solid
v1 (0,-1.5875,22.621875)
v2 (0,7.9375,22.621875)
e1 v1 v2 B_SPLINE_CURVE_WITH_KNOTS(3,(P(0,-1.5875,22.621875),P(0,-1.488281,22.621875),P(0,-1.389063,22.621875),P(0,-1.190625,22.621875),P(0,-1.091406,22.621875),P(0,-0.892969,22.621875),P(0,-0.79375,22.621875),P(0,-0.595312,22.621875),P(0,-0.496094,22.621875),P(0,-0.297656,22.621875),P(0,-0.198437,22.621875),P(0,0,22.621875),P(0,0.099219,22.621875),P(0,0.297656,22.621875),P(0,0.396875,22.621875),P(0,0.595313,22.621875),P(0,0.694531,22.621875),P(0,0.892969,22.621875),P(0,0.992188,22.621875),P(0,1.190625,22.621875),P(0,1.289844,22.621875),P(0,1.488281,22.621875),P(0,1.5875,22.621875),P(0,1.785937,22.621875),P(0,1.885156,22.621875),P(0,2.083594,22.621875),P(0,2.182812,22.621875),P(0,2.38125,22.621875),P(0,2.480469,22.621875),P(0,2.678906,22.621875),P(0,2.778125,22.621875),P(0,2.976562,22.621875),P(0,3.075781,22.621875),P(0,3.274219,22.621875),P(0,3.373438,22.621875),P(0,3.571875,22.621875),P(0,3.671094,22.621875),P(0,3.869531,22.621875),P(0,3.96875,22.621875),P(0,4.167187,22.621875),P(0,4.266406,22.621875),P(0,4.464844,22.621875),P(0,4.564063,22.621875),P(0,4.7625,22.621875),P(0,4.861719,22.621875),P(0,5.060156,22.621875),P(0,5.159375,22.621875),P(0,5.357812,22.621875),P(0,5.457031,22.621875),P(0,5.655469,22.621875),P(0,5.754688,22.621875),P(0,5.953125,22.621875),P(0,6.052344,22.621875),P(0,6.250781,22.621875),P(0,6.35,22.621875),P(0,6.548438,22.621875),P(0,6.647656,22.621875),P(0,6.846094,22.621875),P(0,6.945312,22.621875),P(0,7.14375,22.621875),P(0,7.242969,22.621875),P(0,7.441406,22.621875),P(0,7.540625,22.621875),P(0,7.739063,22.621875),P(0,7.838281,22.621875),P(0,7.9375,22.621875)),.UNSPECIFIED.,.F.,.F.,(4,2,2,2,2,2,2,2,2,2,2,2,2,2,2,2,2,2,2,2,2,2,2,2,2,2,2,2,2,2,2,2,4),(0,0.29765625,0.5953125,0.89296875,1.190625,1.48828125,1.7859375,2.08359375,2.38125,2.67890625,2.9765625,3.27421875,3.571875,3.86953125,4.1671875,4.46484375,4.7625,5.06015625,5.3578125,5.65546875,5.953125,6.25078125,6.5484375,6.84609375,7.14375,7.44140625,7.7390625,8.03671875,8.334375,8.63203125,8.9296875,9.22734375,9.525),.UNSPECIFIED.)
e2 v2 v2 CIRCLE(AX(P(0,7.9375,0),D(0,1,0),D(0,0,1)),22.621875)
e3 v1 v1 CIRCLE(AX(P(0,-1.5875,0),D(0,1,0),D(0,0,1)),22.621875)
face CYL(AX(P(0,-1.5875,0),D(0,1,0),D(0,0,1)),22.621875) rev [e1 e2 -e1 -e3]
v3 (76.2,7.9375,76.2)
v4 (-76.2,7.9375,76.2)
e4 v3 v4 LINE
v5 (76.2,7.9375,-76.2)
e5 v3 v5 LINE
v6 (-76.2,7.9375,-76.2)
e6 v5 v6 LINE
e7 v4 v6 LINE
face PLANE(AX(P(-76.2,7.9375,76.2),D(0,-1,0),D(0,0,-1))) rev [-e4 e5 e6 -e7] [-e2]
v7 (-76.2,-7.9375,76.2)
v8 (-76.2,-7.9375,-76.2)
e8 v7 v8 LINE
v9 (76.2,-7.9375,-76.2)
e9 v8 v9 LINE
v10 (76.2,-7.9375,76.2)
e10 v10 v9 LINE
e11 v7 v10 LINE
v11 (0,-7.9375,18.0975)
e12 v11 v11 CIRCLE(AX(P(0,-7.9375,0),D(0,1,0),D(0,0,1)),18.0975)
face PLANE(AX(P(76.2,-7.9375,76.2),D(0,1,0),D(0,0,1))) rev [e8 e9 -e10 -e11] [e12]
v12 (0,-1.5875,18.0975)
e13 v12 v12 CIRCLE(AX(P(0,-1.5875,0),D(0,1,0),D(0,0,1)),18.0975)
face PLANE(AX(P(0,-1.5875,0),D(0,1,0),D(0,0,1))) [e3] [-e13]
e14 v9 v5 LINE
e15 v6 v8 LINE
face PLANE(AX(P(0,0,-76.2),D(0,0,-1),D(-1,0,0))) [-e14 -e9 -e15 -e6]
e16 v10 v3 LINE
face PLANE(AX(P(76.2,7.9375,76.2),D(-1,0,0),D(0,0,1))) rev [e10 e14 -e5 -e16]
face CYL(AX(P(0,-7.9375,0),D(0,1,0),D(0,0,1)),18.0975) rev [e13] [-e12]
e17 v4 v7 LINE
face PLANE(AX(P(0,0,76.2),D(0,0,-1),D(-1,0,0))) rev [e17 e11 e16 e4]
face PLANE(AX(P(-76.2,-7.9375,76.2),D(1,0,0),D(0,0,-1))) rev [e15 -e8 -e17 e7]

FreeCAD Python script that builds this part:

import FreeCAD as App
import Part
import Sketcher
Q = App.Units.Quantity


def add_polygon(sketch, points):
    """Adds a closed chain of lines whose ends are joined by coincident constraints."""
    first, n = sketch.GeometryCount, len(points)
    for a, b in zip(points, points[1:] + points[:1]):
        sketch.addGeometry(Part.LineSegment(App.Vector(*a, 0), App.Vector(*b, 0)), False)
    for i in range(n):
        sketch.addConstraint(Sketcher.Constraint("Coincident", first + i, 2, first + (i + 1) % n, 1))

doc = App.newDocument("Part")
body = doc.addObject("PartDesign::Body", "Body")

# Sketch on XY plane
sketch1 = doc.addObject("Sketcher::SketchObject", "Sketch")
body.addObject(sketch1)
sketch1.AttachmentSupport = (doc.XY_Plane, [""])
sketch1.MapMode = "FlatFace"
add_polygon(sketch1, [(-76, 8), (-76, -8), (76, -8), (76, 8)])  # lines 0-3
sketch1.addConstraint(Sketcher.Constraint("Vertical", 0))
sketch1.addConstraint(Sketcher.Constraint("Horizontal", 1))
sketch1.addConstraint(Sketcher.Constraint("Vertical", 2))
sketch1.addConstraint(Sketcher.Constraint("Horizontal", 3))
sketch1.addConstraint(Sketcher.Constraint("Symmetric", 0, 2, 2, 2, -1, 1))
sketch1.addConstraint(Sketcher.Constraint("DistanceX", 1, 1, 1, 2, Q("6 in")))
sketch1.addConstraint(Sketcher.Constraint("DistanceY", 0, 2, 0, 1, Q("0.625 in")))
pad1 = doc.addObject("PartDesign::Pad", "Pad")
body.addObject(pad1)
pad1.Profile = sketch1
pad1.Length = Q("6 in")
pad1.Midplane = True

# Sketch on XZ plane
sketch2 = doc.addObject("Sketcher::SketchObject", "Sketch001")
body.addObject(sketch2)
sketch2.AttachmentSupport = (doc.XZ_Plane, [""])
sketch2.MapMode = "FlatFace"
sketch2.AttachmentOffset = App.Placement(App.Vector(0, 0, -0.3125 * 25.4), App.Rotation())
sketch2.addGeometry(Part.Circle(App.Vector(0, 0, 0), App.Vector(0, 0, 1), 23), False)
sketch2.addConstraint(Sketcher.Constraint("Coincident", 0, 3, -1, 1))
sketch2.addConstraint(Sketcher.Constraint("Diameter", 0, Q("1.78125 in")))
pocket1 = doc.addObject("PartDesign::Pocket", "Pocket")
body.addObject(pocket1)
pocket1.Profile = sketch2
pocket1.Length = Q("0.375 in")
pocket1.Reversed = True

# Sketch on XZ plane
sketch3 = doc.addObject("Sketcher::SketchObject", "Sketch002")
body.addObject(sketch3)
sketch3.AttachmentSupport = (doc.XZ_Plane, [""])
sketch3.MapMode = "FlatFace"
sketch3.AttachmentOffset = App.Placement(App.Vector(0, 0, 0.0625 * 25.4), App.Rotation())
sketch3.addGeometry(Part.Circle(App.Vector(0, 0, 0), App.Vector(0, 0, 1), 18), False)
sketch3.addConstraint(Sketcher.Constraint("Coincident", 0, 3, -1, 1))
sketch3.addConstraint(Sketcher.Constraint("Diameter", 0, Q("1.425 in")))
pocket2 = doc.addObject("PartDesign::Pocket", "Pocket001")
body.addObject(pocket2)
pocket2.Profile = sketch3
pocket2.Type = "ThroughAll"
pocket2.Reversed = True

doc.recompute()
